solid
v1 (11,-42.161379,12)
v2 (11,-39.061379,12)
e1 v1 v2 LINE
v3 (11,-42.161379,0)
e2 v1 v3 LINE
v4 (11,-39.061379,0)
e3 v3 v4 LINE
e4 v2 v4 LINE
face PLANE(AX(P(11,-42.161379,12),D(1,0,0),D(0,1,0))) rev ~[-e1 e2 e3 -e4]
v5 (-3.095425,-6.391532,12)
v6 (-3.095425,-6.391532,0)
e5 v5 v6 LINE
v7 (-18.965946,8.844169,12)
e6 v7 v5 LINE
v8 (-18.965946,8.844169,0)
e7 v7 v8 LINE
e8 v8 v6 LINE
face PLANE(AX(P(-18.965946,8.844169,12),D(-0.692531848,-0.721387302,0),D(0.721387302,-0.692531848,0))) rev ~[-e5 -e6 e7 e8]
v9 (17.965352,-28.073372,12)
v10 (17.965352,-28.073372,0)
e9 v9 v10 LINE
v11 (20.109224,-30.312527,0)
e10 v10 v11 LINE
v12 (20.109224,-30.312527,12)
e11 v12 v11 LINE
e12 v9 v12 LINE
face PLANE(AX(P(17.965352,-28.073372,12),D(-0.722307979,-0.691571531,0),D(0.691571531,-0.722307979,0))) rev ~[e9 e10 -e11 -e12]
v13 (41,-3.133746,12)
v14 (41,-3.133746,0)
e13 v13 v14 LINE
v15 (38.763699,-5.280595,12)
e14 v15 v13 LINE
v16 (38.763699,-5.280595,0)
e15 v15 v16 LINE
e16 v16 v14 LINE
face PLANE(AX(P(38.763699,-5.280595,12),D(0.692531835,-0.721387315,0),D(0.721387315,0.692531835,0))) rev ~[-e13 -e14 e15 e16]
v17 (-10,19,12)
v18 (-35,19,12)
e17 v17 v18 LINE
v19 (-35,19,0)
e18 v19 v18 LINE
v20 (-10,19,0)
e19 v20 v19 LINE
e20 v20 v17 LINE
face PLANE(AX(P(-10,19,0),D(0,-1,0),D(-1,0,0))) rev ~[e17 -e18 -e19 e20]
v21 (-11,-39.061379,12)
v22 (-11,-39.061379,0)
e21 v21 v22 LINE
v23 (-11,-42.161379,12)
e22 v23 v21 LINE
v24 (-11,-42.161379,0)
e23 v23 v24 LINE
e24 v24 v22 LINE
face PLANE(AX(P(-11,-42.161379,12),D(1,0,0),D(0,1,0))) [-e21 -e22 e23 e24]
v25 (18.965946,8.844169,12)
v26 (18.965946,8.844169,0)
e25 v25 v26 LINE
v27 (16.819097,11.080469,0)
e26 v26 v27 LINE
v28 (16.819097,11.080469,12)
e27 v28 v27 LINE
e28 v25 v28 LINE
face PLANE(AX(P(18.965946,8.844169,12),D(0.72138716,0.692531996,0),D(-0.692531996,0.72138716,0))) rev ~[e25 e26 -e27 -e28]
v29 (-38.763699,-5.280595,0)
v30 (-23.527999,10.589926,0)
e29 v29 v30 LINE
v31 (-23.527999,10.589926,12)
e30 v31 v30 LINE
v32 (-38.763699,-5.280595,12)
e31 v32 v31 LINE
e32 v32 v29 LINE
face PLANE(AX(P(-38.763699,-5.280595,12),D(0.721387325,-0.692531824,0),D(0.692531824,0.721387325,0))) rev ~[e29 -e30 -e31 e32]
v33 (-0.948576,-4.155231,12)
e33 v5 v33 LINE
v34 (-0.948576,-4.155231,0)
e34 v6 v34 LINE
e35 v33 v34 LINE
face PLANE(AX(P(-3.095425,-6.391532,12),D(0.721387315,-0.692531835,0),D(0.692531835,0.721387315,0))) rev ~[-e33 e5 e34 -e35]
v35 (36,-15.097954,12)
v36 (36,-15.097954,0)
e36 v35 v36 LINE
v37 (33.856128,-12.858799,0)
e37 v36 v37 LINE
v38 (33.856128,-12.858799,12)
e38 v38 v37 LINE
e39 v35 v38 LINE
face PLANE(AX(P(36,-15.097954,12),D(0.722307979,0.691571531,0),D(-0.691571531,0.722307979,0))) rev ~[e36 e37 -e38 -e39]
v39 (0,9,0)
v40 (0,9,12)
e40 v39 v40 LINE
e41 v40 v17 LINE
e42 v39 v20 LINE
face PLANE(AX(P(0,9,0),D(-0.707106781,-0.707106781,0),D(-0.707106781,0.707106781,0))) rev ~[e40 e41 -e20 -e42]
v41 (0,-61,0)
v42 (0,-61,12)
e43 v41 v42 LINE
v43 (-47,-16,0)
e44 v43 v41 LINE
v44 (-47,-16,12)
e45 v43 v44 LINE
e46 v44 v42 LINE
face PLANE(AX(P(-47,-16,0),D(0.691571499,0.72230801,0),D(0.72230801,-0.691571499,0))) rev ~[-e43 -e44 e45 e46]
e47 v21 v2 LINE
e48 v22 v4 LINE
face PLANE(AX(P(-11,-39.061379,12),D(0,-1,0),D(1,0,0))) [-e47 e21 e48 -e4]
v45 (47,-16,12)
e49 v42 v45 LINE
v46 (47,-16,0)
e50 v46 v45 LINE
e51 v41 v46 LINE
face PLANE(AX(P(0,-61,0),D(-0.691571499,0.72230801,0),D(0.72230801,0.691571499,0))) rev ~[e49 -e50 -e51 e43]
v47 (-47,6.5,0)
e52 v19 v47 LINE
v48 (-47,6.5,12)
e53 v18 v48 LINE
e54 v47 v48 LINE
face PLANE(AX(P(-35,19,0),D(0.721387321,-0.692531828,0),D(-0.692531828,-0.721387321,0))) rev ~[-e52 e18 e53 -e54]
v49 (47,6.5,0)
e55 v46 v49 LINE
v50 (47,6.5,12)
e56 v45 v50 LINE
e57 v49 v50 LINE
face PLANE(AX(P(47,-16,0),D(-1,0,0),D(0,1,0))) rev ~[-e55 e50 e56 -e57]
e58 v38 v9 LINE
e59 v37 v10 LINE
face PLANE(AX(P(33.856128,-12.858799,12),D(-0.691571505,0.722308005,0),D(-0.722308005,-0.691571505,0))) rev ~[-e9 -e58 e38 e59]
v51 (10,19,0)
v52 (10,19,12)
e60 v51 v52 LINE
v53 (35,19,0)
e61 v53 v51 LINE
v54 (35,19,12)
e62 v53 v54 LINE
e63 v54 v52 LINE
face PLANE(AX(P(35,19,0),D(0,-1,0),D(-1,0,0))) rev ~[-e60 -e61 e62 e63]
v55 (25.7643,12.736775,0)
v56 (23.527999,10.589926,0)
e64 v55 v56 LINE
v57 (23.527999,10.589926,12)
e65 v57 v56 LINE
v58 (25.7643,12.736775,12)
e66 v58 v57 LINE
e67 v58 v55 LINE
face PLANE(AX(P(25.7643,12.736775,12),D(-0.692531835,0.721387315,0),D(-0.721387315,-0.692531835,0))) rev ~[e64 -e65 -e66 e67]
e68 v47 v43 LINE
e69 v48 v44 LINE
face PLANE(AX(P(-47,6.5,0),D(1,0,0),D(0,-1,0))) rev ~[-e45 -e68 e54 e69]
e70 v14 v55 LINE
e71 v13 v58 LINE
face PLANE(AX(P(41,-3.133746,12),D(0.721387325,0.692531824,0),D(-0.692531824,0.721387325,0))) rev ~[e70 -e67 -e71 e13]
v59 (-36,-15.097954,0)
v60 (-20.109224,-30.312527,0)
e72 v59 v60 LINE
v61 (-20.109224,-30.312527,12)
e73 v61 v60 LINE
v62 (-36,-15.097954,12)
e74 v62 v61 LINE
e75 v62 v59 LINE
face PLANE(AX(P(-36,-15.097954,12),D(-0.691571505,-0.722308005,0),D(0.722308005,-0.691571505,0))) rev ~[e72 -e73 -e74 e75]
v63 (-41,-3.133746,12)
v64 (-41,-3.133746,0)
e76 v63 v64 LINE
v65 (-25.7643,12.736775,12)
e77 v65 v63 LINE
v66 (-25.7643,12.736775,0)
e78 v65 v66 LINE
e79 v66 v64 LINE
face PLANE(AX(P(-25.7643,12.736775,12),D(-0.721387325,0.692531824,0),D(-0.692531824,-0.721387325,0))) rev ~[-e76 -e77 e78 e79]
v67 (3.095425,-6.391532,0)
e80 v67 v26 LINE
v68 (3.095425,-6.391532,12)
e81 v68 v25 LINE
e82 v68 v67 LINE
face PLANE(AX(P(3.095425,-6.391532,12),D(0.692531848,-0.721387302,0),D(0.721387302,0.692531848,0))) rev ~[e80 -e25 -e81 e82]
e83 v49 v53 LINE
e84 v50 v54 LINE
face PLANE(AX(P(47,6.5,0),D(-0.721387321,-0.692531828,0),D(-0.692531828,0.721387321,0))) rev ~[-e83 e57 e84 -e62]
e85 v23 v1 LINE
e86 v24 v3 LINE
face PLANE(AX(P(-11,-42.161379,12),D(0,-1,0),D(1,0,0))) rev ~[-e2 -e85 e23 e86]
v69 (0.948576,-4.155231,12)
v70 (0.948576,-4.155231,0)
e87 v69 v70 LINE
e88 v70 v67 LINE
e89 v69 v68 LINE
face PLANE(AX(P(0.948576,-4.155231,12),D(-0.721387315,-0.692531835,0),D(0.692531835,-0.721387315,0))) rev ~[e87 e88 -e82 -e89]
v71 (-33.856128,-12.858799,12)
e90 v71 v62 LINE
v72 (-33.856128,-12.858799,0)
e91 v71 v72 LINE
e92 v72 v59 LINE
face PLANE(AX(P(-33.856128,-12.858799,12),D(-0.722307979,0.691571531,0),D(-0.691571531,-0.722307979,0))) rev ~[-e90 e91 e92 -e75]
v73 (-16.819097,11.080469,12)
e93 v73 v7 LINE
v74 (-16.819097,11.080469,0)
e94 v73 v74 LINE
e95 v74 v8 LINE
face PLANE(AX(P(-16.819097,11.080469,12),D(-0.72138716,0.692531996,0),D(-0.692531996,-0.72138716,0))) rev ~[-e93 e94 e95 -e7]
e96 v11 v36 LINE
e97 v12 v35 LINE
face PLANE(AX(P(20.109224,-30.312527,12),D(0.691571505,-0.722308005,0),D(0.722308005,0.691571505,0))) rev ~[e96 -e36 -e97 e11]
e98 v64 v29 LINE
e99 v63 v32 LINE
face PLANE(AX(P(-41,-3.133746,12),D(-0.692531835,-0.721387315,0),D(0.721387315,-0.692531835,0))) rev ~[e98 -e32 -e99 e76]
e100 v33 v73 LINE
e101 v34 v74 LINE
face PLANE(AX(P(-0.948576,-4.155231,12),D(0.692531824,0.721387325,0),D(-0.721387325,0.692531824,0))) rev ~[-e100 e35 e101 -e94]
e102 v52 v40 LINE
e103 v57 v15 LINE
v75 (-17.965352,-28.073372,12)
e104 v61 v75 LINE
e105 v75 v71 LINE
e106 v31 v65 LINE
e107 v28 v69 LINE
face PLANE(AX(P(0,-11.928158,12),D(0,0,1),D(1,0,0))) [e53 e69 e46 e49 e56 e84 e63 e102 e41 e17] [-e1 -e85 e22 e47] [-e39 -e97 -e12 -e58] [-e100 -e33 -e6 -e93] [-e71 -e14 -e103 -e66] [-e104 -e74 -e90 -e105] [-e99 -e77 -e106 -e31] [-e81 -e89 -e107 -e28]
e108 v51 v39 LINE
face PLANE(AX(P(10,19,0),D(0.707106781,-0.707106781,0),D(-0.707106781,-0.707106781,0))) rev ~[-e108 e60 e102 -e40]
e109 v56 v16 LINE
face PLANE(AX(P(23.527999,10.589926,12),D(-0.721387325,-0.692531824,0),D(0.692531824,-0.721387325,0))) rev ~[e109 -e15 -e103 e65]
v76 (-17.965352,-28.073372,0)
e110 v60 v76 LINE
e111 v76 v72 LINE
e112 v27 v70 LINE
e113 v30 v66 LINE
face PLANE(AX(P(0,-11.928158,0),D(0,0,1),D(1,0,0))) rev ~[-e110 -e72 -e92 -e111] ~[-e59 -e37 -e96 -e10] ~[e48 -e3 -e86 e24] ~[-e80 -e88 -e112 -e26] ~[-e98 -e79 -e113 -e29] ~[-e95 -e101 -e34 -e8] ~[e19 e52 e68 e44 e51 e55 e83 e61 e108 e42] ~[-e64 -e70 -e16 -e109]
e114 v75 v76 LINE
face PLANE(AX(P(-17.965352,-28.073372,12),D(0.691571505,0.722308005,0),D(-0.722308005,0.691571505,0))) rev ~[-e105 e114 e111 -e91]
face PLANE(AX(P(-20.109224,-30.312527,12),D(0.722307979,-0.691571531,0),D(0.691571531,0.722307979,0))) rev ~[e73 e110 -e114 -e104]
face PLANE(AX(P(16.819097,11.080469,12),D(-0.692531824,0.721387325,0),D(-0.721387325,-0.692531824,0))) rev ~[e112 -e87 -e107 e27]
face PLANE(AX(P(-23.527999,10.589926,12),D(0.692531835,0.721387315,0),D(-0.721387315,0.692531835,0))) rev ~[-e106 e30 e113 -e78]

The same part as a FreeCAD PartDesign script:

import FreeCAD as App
import Part
import Sketcher

V = App.Vector

doc = App.newDocument("Part")
params = doc.addObject("Spreadsheet::Sheet", "Params")
for row, (alias, value) in enumerate([
    ("sketch1_width", "25 mm"),
    ("sketch1_height", "22.5 mm"),
    ("pad1_length", "12 mm"),
    ("sketch2_width", "22 mm"),
    ("sketch2_length", "22 mm"),
    ("sketch2_height", "3.1 mm"),
    ("sketch2_length2", "3.1 mm"),
    ("pocket1_length", "25 mm"),
], start=1):
    params.set(f"A{row}", alias)
    params.set(f"B{row}", "=" + value)
    params.setAlias(f"B{row}", alias)

body = doc.addObject("PartDesign::Body", "Body")

# Sketch on XY plane
sketch1 = body.newObject("Sketcher::SketchObject", "Sketch")
sketch1.AttachmentSupport = (doc.getObject("XY_Plane"), [""])
sketch1.MapMode = "FlatFace"
sketch1.addGeometry([
    Part.LineSegment(V(-47, -16, 0), V(0, -61, 0)),  # 0
    Part.LineSegment(V(0, -61, 0), V(47, -16, 0)),  # 1
    Part.LineSegment(V(47, -16, 0), V(47, 6, 0)),  # 2
    Part.LineSegment(V(47, 6, 0), V(35, 19, 0)),  # 3
    Part.LineSegment(V(35, 19, 0), V(10, 19, 0)),  # 4
    Part.LineSegment(V(10, 19, 0), V(0, 9, 0)),  # 5
    Part.LineSegment(V(0, 9, 0), V(-10, 19, 0)),  # 6
    Part.LineSegment(V(-10, 19, 0), V(-35, 19, 0)),  # 7
    Part.LineSegment(V(-35, 19, 0), V(-47, 6, 0)),  # 8
    Part.LineSegment(V(-47, 6, 0), V(-47, -16, 0)),  # 9
], False)
sketch1.addConstraint([
    Sketcher.Constraint("Coincident", 0, 2, 1, 1),
    Sketcher.Constraint("Coincident", 1, 2, 2, 1),
    Sketcher.Constraint("Coincident", 2, 2, 3, 1),
    Sketcher.Constraint("Coincident", 3, 2, 4, 1),
    Sketcher.Constraint("Coincident", 4, 2, 5, 1),
    Sketcher.Constraint("Coincident", 5, 2, 6, 1),
    Sketcher.Constraint("Coincident", 6, 2, 7, 1),
    Sketcher.Constraint("Coincident", 7, 2, 8, 1),
    Sketcher.Constraint("Coincident", 8, 2, 9, 1),
    Sketcher.Constraint("Coincident", 9, 2, 0, 1),
    Sketcher.Constraint("Vertical", 2),
    Sketcher.Constraint("Horizontal", 4),
    Sketcher.Constraint("Horizontal", 7),
    Sketcher.Constraint("Vertical", 9),
    Sketcher.Constraint("Symmetric", 4, 2, 6, 2, -2),
    Sketcher.Constraint("Symmetric", 2, 2, 8, 2, -2),
    Sketcher.Constraint("PointOnObject", 0, 2, -2),
    Sketcher.Constraint("PointOnObject", 5, 2, -2),
    Sketcher.Constraint("Perpendicular", 5, 6),
    Sketcher.Constraint("Horizontal", 1, 2, 9, 2),
    Sketcher.Constraint("Equal", 4, 7),
    Sketcher.Constraint("DistanceX", 4, 2, 4, 1, 25.0),
    Sketcher.Constraint("DistanceY", 2, 1, 2, 2, 22.5),
    Sketcher.Constraint("DistanceY", 0, 2, -1, 1, 61.0),
    Sketcher.Constraint("DistanceX", -1, 1, 1, 2, 47.0),
    Sketcher.Constraint("DistanceY", 1, 2, -1, 1, 16.0),
    Sketcher.Constraint("DistanceX", -1, 1, 3, 2, 35.0),
    Sketcher.Constraint("DistanceY", -1, 1, 3, 2, 19.0),
])
sketch1.setExpression("Constraints[21]", "Params.sketch1_width")
sketch1.setExpression("Constraints[22]", "Params.sketch1_height")
pad1 = body.newObject("PartDesign::Pad", "Pad")
pad1.Profile = sketch1
pad1.setExpression("Length", "Params.pad1_length")

# Sketch on XY plane
sketch2 = body.newObject("Sketcher::SketchObject", "Sketch001")
sketch2.AttachmentSupport = (doc.getObject("XY_Plane"), [""])
sketch2.MapMode = "FlatFace"
sketch2.AttachmentOffset = App.Placement(V(0, 0, 12), App.Rotation())
sketch2.addGeometry([
    Part.LineSegment(V(38.8, -5.3, 0), V(41, -3.1, 0)),  # 0
    Part.LineSegment(V(41, -3.1, 0), V(25.8, 12.7, 0)),  # 1
    Part.LineSegment(V(25.8, 12.7, 0), V(23.5, 10.6, 0)),  # 2
    Part.LineSegment(V(23.5, 10.6, 0), V(38.8, -5.3, 0)),  # 3
    Part.LineSegment(V(18, -28.1, 0), V(20.1, -30.3, 0)),  # 4
    Part.LineSegment(V(20.1, -30.3, 0), V(36, -15.1, 0)),  # 5
    Part.LineSegment(V(36, -15.1, 0), V(33.9, -12.9, 0)),  # 6
    Part.LineSegment(V(33.9, -12.9, 0), V(18, -28.1, 0)),  # 7
    Part.LineSegment(V(-11, -39.1, 0), V(-11, -42.2, 0)),  # 8
    Part.LineSegment(V(-11, -42.2, 0), V(11, -42.2, 0)),  # 9
    Part.LineSegment(V(11, -42.2, 0), V(11, -39.1, 0)),  # 10
    Part.LineSegment(V(11, -39.1, 0), V(-11, -39.1, 0)),  # 11
    Part.LineSegment(V(-18, -28.1, 0), V(-33.9, -12.9, 0)),  # 12
    Part.LineSegment(V(-33.9, -12.9, 0), V(-36, -15.1, 0)),  # 13
    Part.LineSegment(V(-36, -15.1, 0), V(-20.1, -30.3, 0)),  # 14
    Part.LineSegment(V(-20.1, -30.3, 0), V(-18, -28.1, 0)),  # 15
    Part.LineSegment(V(3.1, -6.4, 0), V(19, 8.8, 0)),  # 16
    Part.LineSegment(V(19, 8.8, 0), V(16.8, 11.1, 0)),  # 17
    Part.LineSegment(V(16.8, 11.1, 0), V(0.9, -4.2, 0)),  # 18
    Part.LineSegment(V(0.9, -4.2, 0), V(3.1, -6.4, 0)),  # 19
    Part.LineSegment(V(-19, 8.8, 0), V(-3.1, -6.4, 0)),  # 20
    Part.LineSegment(V(-3.1, -6.4, 0), V(-0.9, -4.2, 0)),  # 21
    Part.LineSegment(V(-0.9, -4.2, 0), V(-16.8, 11.1, 0)),  # 22
    Part.LineSegment(V(-16.8, 11.1, 0), V(-19, 8.8, 0)),  # 23
    Part.LineSegment(V(-38.8, -5.3, 0), V(-23.5, 10.6, 0)),  # 24
    Part.LineSegment(V(-23.5, 10.6, 0), V(-25.8, 12.7, 0)),  # 25
    Part.LineSegment(V(-25.8, 12.7, 0), V(-41, -3.1, 0)),  # 26
    Part.LineSegment(V(-41, -3.1, 0), V(-38.8, -5.3, 0)),  # 27
], False)
sketch2.addConstraint([
    Sketcher.Constraint("Coincident", 0, 2, 1, 1),
    Sketcher.Constraint("Coincident", 1, 2, 2, 1),
    Sketcher.Constraint("Coincident", 2, 2, 3, 1),
    Sketcher.Constraint("Coincident", 3, 2, 0, 1),
    Sketcher.Constraint("Coincident", 4, 2, 5, 1),
    Sketcher.Constraint("Coincident", 5, 2, 6, 1),
    Sketcher.Constraint("Coincident", 6, 2, 7, 1),
    Sketcher.Constraint("Coincident", 7, 2, 4, 1),
    Sketcher.Constraint("Coincident", 8, 2, 9, 1),
    Sketcher.Constraint("Coincident", 9, 2, 10, 1),
    Sketcher.Constraint("Coincident", 10, 2, 11, 1),
    Sketcher.Constraint("Coincident", 11, 2, 8, 1),
    Sketcher.Constraint("Coincident", 12, 2, 13, 1),
    Sketcher.Constraint("Coincident", 13, 2, 14, 1),
    Sketcher.Constraint("Coincident", 14, 2, 15, 1),
    Sketcher.Constraint("Coincident", 15, 2, 12, 1),
    Sketcher.Constraint("Coincident", 16, 2, 17, 1),
    Sketcher.Constraint("Coincident", 17, 2, 18, 1),
    Sketcher.Constraint("Coincident", 18, 2, 19, 1),
    Sketcher.Constraint("Coincident", 19, 2, 16, 1),
    Sketcher.Constraint("Coincident", 20, 2, 21, 1),
    Sketcher.Constraint("Coincident", 21, 2, 22, 1),
    Sketcher.Constraint("Coincident", 22, 2, 23, 1),
    Sketcher.Constraint("Coincident", 23, 2, 20, 1),
    Sketcher.Constraint("Coincident", 24, 2, 25, 1),
    Sketcher.Constraint("Coincident", 25, 2, 26, 1),
    Sketcher.Constraint("Coincident", 26, 2, 27, 1),
    Sketcher.Constraint("Coincident", 27, 2, 24, 1),
    Sketcher.Constraint("Vertical", 8),
    Sketcher.Constraint("Horizontal", 9),
    Sketcher.Constraint("Vertical", 10),
    Sketcher.Constraint("Horizontal", 11),
    Sketcher.Constraint("Symmetric", 6, 2, 12, 2, -2),
    Sketcher.Constraint("Symmetric", 5, 2, 13, 2, -2),
    Sketcher.Constraint("Symmetric", 4, 2, 14, 2, -2),
    Sketcher.Constraint("Symmetric", 7, 2, 15, 2, -2),
    Sketcher.Constraint("Symmetric", 19, 2, 20, 2, -2),
    Sketcher.Constraint("Symmetric", 18, 2, 21, 2, -2),
    Sketcher.Constraint("Symmetric", 17, 2, 22, 2, -2),
    Sketcher.Constraint("Symmetric", 16, 2, 23, 2, -2),
    Sketcher.Constraint("Symmetric", 2, 2, 24, 2, -2),
    Sketcher.Constraint("Symmetric", 1, 2, 25, 2, -2),
    Sketcher.Constraint("Symmetric", 0, 2, 26, 2, -2),
    Sketcher.Constraint("Symmetric", 3, 2, 27, 2, -2),
    Sketcher.Constraint("Perpendicular", 0, 1),
    Sketcher.Constraint("Perpendicular", 1, 2),
    Sketcher.Constraint("Perpendicular", 2, 3),
    Sketcher.Constraint("Perpendicular", 4, 5),
    Sketcher.Constraint("Perpendicular", 5, 6),
    Sketcher.Constraint("Perpendicular", 6, 7),
    Sketcher.Constraint("Perpendicular", 3, 16),
    Sketcher.Constraint("Perpendicular", 16, 17),
    Sketcher.Constraint("Perpendicular", 17, 18),
    Sketcher.Constraint("Perpendicular", 18, 19),
    Sketcher.Constraint("Equal", 2, 4),
    Sketcher.Constraint("Equal", 3, 5),
    Sketcher.Constraint("Equal", 14, 16),
    Sketcher.Constraint("Equal", 15, 17),
    Sketcher.Constraint("DistanceX", 9, 1, 9, 2, 22.0),
    Sketcher.Constraint("Distance", 1, 22.0),
    Sketcher.Constraint("DistanceY", 8, 2, 8, 1, 3.1),
    Sketcher.Constraint("DistanceX", -1, 1, 0, 2, 41.0),
    Sketcher.Constraint("DistanceX", -1, 1, 5, 2, 36.0),
    Sketcher.Constraint("DistanceX", 8, 2, -1, 1, 11.0),
    Sketcher.Constraint("Distance", 0, 3.1),
    Sketcher.Constraint("DistanceX", -1, 1, 2, 2, 23.527999),
    Sketcher.Constraint("DistanceX", 20, 2, 18, 2, 4.044001),
    Sketcher.Constraint("DistanceY", 6, 2, -1, 1, 12.858799),
    Sketcher.Constraint("DistanceY", 4, 2, 1, 2, 43.049302),
    Sketcher.Constraint("DistanceX", -1, 1, 7, 2, 17.965352),
    Sketcher.Constraint("DistanceY", 8, 2, -1, 1, 42.161379),
    Sketcher.Constraint("DistanceY", -1, 1, 16, 2, 8.844169),
])
sketch2.setExpression("Constraints[58]", "Params.sketch2_width")
sketch2.setExpression("Constraints[59]", "Params.sketch2_length")
sketch2.setExpression("Constraints[60]", "Params.sketch2_height")
sketch2.setExpression("Constraints[64]", "Params.sketch2_length2")
pocket1 = body.newObject("PartDesign::Pocket", "Pocket")
pocket1.Profile = sketch2
pocket1.setExpression("Length", "Params.pocket1_length")

doc.recompute()
